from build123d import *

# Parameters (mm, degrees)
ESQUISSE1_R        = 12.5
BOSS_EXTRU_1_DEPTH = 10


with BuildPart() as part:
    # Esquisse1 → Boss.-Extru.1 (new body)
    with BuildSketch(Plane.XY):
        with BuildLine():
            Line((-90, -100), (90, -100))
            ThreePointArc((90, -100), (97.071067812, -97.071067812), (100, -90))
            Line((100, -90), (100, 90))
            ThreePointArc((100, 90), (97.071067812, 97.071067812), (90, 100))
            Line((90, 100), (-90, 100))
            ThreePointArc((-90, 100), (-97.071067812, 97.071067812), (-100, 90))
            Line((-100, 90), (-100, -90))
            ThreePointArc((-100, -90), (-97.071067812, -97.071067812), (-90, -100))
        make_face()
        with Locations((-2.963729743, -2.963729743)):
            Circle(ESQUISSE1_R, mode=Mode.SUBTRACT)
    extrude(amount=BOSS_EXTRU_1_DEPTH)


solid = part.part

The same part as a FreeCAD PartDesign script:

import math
import FreeCAD as App
import Part
import Sketcher

V = App.Vector
Q = App.Units.Quantity

doc = App.newDocument("Part")
body = doc.addObject("PartDesign::Body", "Body")

sketch1 = body.newObject("Sketcher::SketchObject", "Sketch")
sketch1.AttachmentSupport = (doc.getObject("XY_Plane"), [""])
sketch1.MapMode = "FlatFace"
sketch1.addGeometry([
    Part.LineSegment(V(-90, -100, 0), V(90, -100, 0)),
    Part.ArcOfCircle(Part.Circle(V(90, -90, 0), V(0, 0, 1), 10), math.radians(-90), math.radians(0)),
    Part.LineSegment(V(100, -90, 0), V(100, 90, 0)),
    Part.ArcOfCircle(Part.Circle(V(90, 90, 0), V(0, 0, 1), 10), math.radians(0), math.radians(90)),
    Part.LineSegment(V(90, 100, 0), V(-90, 100, 0)),
    Part.ArcOfCircle(Part.Circle(V(-90, 90, 0), V(0, 0, 1), 10), math.radians(90), math.radians(180)),
    Part.LineSegment(V(-100, 90, 0), V(-100, -90, 0)),
    Part.ArcOfCircle(Part.Circle(V(-90, -90, 0), V(0, 0, 1), 10), math.radians(180), math.radians(270)),
    Part.Circle(V(-3, -3, 0), V(0, 0, 1), 12),
], False)
sketch1.addConstraint([
    Sketcher.Constraint("Tangent", 0, 2, 1, 1),
    Sketcher.Constraint("Tangent", 1, 2, 2, 1),
    Sketcher.Constraint("Tangent", 2, 2, 3, 1),
    Sketcher.Constraint("Tangent", 3, 2, 4, 1),
    Sketcher.Constraint("Tangent", 4, 2, 5, 1),
    Sketcher.Constraint("Tangent", 5, 2, 6, 1),
    Sketcher.Constraint("Tangent", 6, 2, 7, 1),
    Sketcher.Constraint("Tangent", 7, 2, 0, 1),
    Sketcher.Constraint("Horizontal", 0),
    Sketcher.Constraint("Vertical", 2),
    Sketcher.Constraint("Horizontal", 4),
    Sketcher.Constraint("Vertical", 6),
    Sketcher.Constraint("Equal", 1, 3),
    Sketcher.Constraint("Equal", 3, 5),
    Sketcher.Constraint("Equal", 5, 7),
    Sketcher.Constraint("Symmetric", 1, 3, 5, 3, -1, 1),
    Sketcher.Constraint("Equal", 4, 2),
    Sketcher.Constraint("Diameter", 8, Q("25 mm")),
    Sketcher.Constraint("Radius", 1, Q("10 mm")),
    Sketcher.Constraint("DistanceX", 0, 1, 0, 2, Q("180 mm")),
    Sketcher.Constraint("DistanceX", 8, 3, -1, 1, Q("2.96373 mm")),
    Sketcher.Constraint("DistanceY", 8, 3, -1, 1, Q("2.96373 mm")),
])
pad1 = body.newObject("PartDesign::Pad", "Pad")
pad1.Profile = sketch1
pad1.Length = 10

doc.recompute()
